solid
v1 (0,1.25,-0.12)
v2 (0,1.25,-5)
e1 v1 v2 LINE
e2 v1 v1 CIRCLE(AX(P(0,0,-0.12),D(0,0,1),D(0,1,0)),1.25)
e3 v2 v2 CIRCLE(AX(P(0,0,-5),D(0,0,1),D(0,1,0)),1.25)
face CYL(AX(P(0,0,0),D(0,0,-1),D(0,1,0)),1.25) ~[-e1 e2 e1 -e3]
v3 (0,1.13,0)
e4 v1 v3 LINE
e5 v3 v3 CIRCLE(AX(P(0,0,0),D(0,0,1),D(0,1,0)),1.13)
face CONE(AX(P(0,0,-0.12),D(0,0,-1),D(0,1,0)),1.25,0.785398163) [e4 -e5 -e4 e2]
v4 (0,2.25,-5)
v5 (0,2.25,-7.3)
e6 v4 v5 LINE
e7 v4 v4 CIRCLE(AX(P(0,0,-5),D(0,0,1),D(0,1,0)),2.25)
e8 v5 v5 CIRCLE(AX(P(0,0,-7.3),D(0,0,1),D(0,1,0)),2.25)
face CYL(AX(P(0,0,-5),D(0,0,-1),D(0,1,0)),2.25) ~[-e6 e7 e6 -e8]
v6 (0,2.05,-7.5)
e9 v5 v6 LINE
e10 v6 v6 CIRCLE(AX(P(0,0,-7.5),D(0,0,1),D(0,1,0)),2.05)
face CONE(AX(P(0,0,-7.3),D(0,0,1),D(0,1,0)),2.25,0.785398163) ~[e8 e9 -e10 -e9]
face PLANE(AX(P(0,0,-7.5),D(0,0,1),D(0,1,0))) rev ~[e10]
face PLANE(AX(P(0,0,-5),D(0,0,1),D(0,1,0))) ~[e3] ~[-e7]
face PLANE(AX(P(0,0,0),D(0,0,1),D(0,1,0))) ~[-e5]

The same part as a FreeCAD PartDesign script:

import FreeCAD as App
import Part
import Sketcher

V = App.Vector
Q = App.Units.Quantity


def add_polygon(sketch, points):
    """Adds a closed chain of lines whose ends are joined by coincident constraints."""
    first, n = sketch.GeometryCount, len(points)
    for a, b in zip(points, points[1:] + points[:1]):
        sketch.addGeometry(Part.LineSegment(App.Vector(*a, 0), App.Vector(*b, 0)), False)
    for i in range(n):
        sketch.addConstraint(Sketcher.Constraint("Coincident", first + i, 2, first + (i + 1) % n, 1))

doc = App.newDocument("Part")
body = doc.addObject("PartDesign::Body", "Body")

# Sketch on YZ plane
sketch1 = body.newObject("Sketcher::SketchObject", "Sketch")
sketch1.AttachmentSupport = (doc.getObject("YZ_Plane"), [""])
sketch1.MapMode = "FlatFace"
add_polygon(sketch1, [(1.13, 0), (0, 0), (0, -7.5), (2.05, -7.5), (2.25, -7.3), (2.25, -5), (1.25, -5), (1.25, -0.12)])  # lines 0-7
sketch1.addConstraint([
    Sketcher.Constraint("Horizontal", 0),
    Sketcher.Constraint("Vertical", 1),
    Sketcher.Constraint("Horizontal", 2),
    Sketcher.Constraint("Vertical", 4),
    Sketcher.Constraint("Horizontal", 5),
    Sketcher.Constraint("Vertical", 6),
    Sketcher.Constraint("Coincident", 0, 2, -1, 1),
    Sketcher.Constraint("Perpendicular", 3, 7),
    Sketcher.Constraint("Angle", 3, Q("45 deg")),
    Sketcher.Constraint("DistanceY", 4, 2, -1, 1, 5.0),
    Sketcher.Constraint("DistanceX", 2, 2, 3, 2, 0.2),
    Sketcher.Constraint("DistanceY", 2, 2, 4, 2, 2.5),
    Sketcher.Constraint("DistanceX", 5, 2, 5, 1, 1.0),
    Sketcher.Constraint("DistanceX", -1, 1, 3, 2, 2.25),
    Sketcher.Constraint("DistanceY", 6, 2, -1, 1, 0.12),
])
revolution = body.newObject("PartDesign::Revolution", "Revolution")
revolution.Profile = sketch1
revolution.ReferenceAxis = (sketch1, ["V_Axis"])
revolution.Angle = 360

doc.recompute()
